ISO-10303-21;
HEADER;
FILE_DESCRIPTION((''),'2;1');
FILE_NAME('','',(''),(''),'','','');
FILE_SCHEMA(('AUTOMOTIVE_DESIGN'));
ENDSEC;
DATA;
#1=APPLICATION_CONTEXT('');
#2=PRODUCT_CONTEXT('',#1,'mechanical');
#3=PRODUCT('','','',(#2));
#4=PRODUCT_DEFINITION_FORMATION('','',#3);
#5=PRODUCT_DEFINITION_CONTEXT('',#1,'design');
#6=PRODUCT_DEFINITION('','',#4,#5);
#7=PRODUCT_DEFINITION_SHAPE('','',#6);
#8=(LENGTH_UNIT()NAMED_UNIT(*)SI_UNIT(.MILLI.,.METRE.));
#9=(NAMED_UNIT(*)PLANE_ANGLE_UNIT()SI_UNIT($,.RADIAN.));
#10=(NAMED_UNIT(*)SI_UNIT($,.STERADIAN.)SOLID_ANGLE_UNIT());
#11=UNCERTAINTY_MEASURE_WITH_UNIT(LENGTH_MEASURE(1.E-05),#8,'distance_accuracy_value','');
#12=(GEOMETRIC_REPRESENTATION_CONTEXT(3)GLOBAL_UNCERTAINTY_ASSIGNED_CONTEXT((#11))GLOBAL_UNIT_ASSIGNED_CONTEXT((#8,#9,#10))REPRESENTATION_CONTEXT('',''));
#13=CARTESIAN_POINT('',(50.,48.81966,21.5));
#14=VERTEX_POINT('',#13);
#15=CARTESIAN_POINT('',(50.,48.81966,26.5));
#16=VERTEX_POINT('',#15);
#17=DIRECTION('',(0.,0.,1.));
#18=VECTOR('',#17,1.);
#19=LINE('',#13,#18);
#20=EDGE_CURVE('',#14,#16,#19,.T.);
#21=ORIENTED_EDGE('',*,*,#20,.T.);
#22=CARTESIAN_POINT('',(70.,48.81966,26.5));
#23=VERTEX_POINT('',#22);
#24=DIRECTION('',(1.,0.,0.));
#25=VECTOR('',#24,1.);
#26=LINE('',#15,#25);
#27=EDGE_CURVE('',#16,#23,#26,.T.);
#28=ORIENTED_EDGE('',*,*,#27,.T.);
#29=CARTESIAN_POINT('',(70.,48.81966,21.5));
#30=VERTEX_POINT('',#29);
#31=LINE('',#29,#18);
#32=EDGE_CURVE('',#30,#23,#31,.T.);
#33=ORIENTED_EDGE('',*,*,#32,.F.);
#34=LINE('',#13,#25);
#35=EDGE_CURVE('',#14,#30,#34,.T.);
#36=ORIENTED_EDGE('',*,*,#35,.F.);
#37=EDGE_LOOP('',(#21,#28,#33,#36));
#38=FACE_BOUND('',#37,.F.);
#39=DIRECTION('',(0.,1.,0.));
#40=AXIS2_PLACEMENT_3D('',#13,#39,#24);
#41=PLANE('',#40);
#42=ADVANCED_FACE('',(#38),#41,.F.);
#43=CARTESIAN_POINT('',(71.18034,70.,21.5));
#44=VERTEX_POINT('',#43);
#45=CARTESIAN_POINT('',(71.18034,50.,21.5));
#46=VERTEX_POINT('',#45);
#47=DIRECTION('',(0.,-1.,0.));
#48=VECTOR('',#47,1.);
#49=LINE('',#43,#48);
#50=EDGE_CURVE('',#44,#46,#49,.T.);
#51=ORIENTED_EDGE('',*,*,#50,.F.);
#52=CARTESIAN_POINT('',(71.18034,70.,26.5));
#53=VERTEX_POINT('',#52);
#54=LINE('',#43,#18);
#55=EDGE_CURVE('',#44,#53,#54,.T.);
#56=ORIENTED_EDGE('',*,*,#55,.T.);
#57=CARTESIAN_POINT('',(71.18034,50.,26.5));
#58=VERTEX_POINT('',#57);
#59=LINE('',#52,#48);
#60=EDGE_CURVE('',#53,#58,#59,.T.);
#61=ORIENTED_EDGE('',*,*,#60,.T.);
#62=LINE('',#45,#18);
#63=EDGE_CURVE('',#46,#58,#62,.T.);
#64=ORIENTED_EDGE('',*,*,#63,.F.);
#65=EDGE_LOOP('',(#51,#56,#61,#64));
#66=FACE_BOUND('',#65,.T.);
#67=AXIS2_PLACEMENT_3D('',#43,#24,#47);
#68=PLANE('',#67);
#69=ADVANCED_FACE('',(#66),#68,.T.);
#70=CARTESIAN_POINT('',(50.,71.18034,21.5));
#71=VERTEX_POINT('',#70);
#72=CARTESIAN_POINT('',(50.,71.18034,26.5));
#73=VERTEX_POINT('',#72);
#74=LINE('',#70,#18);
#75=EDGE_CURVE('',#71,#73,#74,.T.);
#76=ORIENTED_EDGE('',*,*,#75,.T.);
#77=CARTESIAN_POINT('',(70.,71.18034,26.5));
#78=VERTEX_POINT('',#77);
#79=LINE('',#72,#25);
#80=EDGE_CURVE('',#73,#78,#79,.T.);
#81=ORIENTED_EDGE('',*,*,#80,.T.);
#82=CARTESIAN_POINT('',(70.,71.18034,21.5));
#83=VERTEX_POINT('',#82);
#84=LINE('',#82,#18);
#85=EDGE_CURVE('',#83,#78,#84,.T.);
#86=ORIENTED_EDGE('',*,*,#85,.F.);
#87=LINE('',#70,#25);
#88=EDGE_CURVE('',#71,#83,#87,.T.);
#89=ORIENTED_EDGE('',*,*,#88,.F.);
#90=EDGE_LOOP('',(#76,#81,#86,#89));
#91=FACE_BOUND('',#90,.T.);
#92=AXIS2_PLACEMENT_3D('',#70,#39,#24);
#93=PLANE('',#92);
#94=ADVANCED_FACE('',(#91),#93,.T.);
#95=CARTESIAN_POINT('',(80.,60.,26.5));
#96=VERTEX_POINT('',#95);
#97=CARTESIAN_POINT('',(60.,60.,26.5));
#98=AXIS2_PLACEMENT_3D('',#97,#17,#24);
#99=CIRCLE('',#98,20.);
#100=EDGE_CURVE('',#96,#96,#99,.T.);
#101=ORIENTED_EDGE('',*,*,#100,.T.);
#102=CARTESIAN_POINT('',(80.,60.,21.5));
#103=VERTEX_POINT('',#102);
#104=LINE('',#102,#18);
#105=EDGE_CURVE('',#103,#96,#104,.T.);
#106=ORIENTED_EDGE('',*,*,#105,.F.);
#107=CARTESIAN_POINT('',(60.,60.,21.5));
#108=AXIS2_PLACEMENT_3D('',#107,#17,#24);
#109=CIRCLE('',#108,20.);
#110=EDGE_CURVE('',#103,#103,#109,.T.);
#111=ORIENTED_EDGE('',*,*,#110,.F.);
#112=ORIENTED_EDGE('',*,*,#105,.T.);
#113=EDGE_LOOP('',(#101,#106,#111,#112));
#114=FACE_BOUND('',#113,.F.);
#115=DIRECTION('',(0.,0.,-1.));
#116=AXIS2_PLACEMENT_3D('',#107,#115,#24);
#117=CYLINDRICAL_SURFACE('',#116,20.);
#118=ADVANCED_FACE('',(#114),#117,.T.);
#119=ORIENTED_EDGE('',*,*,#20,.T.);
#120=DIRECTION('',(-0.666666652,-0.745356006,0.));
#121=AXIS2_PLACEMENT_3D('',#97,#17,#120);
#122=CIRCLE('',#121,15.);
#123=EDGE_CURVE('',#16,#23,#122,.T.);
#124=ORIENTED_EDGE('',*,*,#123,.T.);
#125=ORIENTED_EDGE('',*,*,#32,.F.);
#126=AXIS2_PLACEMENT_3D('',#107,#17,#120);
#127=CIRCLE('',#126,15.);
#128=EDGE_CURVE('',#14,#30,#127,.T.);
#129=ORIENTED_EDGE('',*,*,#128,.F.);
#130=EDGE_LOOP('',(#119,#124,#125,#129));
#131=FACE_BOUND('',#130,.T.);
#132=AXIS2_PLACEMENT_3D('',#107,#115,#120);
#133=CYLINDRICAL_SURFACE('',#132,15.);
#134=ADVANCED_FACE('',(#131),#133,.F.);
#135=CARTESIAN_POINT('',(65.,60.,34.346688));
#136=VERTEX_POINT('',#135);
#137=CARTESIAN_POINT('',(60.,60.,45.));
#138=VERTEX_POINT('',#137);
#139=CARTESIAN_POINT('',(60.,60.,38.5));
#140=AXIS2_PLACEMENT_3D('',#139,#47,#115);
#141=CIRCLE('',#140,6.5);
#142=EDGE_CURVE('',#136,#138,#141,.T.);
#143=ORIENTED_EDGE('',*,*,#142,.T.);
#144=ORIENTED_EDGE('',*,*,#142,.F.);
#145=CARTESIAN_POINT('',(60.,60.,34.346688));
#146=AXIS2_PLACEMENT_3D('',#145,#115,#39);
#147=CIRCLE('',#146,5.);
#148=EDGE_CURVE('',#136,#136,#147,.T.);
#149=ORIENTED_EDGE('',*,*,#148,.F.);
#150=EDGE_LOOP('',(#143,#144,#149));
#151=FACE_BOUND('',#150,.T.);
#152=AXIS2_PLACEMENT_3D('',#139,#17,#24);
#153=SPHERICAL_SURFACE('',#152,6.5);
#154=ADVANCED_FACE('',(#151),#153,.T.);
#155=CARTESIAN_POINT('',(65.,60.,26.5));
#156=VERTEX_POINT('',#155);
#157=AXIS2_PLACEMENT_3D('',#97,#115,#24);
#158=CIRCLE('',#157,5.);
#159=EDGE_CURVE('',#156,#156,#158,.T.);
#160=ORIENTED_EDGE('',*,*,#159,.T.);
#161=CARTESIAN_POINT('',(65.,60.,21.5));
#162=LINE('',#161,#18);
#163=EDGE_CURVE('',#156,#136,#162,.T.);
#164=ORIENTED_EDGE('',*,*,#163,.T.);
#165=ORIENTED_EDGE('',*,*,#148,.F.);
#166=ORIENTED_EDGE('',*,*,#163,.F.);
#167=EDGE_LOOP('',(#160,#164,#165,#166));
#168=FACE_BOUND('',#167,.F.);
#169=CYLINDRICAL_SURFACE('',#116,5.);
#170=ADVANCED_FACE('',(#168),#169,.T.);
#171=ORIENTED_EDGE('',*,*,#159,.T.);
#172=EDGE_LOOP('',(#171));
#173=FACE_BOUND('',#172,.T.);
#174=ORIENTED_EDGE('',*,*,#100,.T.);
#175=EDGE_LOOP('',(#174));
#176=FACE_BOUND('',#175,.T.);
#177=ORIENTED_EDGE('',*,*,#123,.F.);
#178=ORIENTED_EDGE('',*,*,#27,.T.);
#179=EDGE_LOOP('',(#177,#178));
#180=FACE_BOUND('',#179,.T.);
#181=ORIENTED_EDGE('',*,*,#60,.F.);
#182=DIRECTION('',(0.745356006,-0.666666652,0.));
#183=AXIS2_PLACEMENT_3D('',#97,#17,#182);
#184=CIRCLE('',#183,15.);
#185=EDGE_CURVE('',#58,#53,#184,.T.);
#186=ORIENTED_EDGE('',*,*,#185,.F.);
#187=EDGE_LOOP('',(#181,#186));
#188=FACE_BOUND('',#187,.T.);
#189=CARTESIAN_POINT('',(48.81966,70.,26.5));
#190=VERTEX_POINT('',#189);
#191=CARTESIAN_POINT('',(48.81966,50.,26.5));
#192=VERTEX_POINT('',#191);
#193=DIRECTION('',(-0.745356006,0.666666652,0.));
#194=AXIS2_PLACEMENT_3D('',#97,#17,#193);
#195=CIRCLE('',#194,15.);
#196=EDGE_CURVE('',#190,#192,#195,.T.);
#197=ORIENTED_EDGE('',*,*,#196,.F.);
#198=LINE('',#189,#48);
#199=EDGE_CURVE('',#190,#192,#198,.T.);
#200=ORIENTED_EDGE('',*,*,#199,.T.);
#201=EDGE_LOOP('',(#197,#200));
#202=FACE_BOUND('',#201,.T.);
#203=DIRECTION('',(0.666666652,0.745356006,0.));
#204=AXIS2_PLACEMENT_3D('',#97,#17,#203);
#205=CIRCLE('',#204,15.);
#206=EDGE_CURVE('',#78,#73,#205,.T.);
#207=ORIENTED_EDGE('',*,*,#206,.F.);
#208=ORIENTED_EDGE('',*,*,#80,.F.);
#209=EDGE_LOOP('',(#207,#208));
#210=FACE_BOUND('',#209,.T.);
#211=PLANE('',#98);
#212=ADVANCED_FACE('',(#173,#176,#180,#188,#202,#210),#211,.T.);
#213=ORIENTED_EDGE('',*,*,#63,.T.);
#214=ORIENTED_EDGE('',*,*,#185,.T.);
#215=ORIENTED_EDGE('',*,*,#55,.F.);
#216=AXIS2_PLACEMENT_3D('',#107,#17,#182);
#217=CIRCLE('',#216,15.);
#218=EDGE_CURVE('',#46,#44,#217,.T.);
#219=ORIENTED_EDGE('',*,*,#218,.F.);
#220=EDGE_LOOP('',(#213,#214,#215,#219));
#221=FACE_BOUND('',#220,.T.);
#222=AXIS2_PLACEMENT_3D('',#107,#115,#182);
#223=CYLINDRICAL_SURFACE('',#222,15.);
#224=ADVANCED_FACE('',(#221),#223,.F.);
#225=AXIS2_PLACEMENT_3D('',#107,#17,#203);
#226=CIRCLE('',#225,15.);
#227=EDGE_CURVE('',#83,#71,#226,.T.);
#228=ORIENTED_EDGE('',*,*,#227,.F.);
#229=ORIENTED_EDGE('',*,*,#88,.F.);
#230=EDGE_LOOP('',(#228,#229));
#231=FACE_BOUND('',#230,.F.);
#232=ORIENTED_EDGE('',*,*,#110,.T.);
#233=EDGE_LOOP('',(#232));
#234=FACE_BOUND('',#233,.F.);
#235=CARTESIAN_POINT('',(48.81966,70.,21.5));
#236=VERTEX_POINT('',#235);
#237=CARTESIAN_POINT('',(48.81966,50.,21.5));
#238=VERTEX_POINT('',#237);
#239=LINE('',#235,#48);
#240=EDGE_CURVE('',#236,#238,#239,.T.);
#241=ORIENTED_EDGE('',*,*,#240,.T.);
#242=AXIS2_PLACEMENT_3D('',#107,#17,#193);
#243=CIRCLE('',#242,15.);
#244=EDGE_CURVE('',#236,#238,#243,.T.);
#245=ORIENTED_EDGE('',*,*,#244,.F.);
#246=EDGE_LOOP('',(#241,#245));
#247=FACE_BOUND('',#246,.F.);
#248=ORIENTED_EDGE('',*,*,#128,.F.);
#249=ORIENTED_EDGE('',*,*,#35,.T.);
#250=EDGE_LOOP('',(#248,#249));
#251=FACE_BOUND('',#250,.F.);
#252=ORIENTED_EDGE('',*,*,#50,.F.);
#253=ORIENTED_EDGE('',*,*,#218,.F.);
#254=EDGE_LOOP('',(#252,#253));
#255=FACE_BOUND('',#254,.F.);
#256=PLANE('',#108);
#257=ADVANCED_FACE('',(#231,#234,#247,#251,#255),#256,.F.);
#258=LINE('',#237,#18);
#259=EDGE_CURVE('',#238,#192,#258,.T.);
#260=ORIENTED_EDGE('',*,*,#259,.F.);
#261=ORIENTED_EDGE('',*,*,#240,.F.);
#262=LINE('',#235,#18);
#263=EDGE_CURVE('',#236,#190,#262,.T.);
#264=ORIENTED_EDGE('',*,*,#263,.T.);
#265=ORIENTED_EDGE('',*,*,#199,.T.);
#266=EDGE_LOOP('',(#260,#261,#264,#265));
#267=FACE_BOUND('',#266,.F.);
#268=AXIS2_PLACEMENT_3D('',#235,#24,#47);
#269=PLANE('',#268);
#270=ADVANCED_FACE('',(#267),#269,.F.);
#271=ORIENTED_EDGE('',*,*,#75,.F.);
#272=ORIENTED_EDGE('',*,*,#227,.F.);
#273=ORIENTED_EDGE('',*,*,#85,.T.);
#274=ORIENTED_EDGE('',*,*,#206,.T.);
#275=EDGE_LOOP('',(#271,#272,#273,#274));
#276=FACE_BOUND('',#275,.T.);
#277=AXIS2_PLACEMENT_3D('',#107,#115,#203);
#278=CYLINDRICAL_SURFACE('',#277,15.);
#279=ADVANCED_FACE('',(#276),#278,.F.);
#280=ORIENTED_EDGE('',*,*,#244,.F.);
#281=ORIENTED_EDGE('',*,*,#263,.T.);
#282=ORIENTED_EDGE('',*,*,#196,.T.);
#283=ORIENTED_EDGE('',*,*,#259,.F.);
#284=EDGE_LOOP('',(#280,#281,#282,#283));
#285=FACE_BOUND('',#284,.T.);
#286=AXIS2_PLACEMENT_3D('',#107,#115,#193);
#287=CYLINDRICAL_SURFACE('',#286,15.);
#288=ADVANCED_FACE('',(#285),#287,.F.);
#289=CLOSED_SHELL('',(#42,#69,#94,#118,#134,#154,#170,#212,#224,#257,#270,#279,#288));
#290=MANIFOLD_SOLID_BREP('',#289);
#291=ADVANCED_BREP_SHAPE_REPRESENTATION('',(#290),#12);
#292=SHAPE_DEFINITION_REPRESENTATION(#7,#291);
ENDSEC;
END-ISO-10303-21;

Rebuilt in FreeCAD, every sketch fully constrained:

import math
import FreeCAD as App
import Part
import Sketcher
from FreeCAD import Vector
Q = App.Units.Quantity

doc = App.newDocument("Part")
params = doc.addObject("Spreadsheet::Sheet", "Params")
for row, (alias, value) in enumerate([
    ("sketch1_diameter", "40 mm"),
    ("sketch1_radius", "15 mm"),
    ("sketch1_width", "20 mm"),
    ("pad1_length", "5 mm"),
    ("sketch2_radius", "6.5 mm"),
    ("revolution_angle", "360 deg"),
    ("sketch3_diameter", "10 mm"),
    ("pad2_length", "15 mm"),
], start=1):
    params.set(f"A{row}", alias)
    params.set(f"B{row}", "=" + value)
    params.setAlias(f"B{row}", alias)

body = doc.addObject("PartDesign::Body", "Body")

# Sketch on XY plane
sketch1 = body.newObject("Sketcher::SketchObject", "Sketch")
sketch1.AttachmentSupport = (doc.getObject("XY_Plane"), [""])
sketch1.MapMode = "FlatFace"
sketch1.addGeometry([
    Part.Circle(Vector(0, 0, 0), Vector(0, 0, 1), 20),  # 0
    Part.ArcOfCircle(Part.Circle(Vector(0, 0, 0), Vector(0, 0, 1), 15), math.radians(-132), math.radians(-48)),  # 1
    Part.LineSegment(Vector(-10, -11, 0), Vector(10, -11, 0)),  # 2
    Part.ArcOfCircle(Part.Circle(Vector(0, 0, 0), Vector(0, 0, 1), 15), math.radians(138), math.radians(222)),  # 3
    Part.LineSegment(Vector(-11, 10, 0), Vector(-11, -10, 0)),  # 4
    Part.ArcOfCircle(Part.Circle(Vector(0, 0, 0), Vector(0, 0, 1), 15), math.radians(48), math.radians(132)),  # 5
    Part.LineSegment(Vector(10, 11, 0), Vector(-10, 11, 0)),  # 6
    Part.ArcOfCircle(Part.Circle(Vector(0, 0, 0), Vector(0, 0, 1), 15), math.radians(-42), math.radians(42)),  # 7
    Part.LineSegment(Vector(11, -10, 0), Vector(11, 10, 0)),  # 8
], False)
sketch1.addConstraint([
    Sketcher.Constraint("Coincident", 1, 1, 2, 1),
    Sketcher.Constraint("Coincident", 2, 2, 1, 2),
    Sketcher.Constraint("Coincident", 3, 1, 4, 1),
    Sketcher.Constraint("Coincident", 4, 2, 3, 2),
    Sketcher.Constraint("Coincident", 5, 1, 6, 1),
    Sketcher.Constraint("Coincident", 6, 2, 5, 2),
    Sketcher.Constraint("Coincident", 7, 1, 8, 1),
    Sketcher.Constraint("Coincident", 8, 2, 7, 2),
    Sketcher.Constraint("Horizontal", 2),
    Sketcher.Constraint("Vertical", 4),
    Sketcher.Constraint("Horizontal", 6),
    Sketcher.Constraint("Vertical", 8),
    Sketcher.Constraint("Coincident", 0, 3, -1, 1),
    Sketcher.Constraint("Coincident", 1, 3, -1, 1),
    Sketcher.Constraint("Coincident", 3, 3, -1, 1),
    Sketcher.Constraint("Coincident", 5, 3, -1, 1),
    Sketcher.Constraint("Coincident", 7, 3, -1, 1),
    Sketcher.Constraint("Equal", 1, 3),
    Sketcher.Constraint("Equal", 3, 5),
    Sketcher.Constraint("Equal", 5, 7),
    Sketcher.Constraint("Horizontal", 4, 2, 7, 1),
    Sketcher.Constraint("Vertical", 2, 2, 5, 1),
    Sketcher.Constraint("Equal", 6, 4),
    Sketcher.Constraint("Diameter", 0, Q("40 mm")),
    Sketcher.Constraint("Radius", 1, Q("15 mm")),
    Sketcher.Constraint("DistanceX", 2, 1, 2, 2, Q("20 mm")),
])
sketch1.setExpression("Constraints[23]", "Params.sketch1_diameter")
sketch1.setExpression("Constraints[24]", "Params.sketch1_radius")
sketch1.setExpression("Constraints[25]", "Params.sketch1_width")
pad1 = body.newObject("PartDesign::Pad", "Pad")
pad1.Profile = sketch1
pad1.setExpression("Length", "Params.pad1_length")
body2 = doc.addObject("PartDesign::Body", "Body001")

# Sketch on XZ plane
sketch2 = body2.newObject("Sketcher::SketchObject", "Sketch001")
sketch2.AttachmentSupport = (doc.getObject("XZ_Plane001"), [""])
sketch2.MapMode = "FlatFace"
sketch2.addGeometry([
    Part.ArcOfCircle(Part.Circle(Vector(0, 17, 0), Vector(0, 0, 1), 6), math.radians(-90), math.radians(90)),
    Part.LineSegment(Vector(0, 24, 0), Vector(0, 10, 0)),
], False)
sketch2.addConstraint([
    Sketcher.Constraint("Coincident", 0, 1, 1, 2),
    Sketcher.Constraint("Coincident", 1, 1, 0, 2),
    Sketcher.Constraint("Vertical", 1),
    Sketcher.Constraint("PointOnObject", 0, 3, -2),
    Sketcher.Constraint("PointOnObject", 0, 1, -2),
    Sketcher.Constraint("Radius", 0, Q("6.5 mm")),
    Sketcher.Constraint("DistanceY", -1, 1, 0, 3, Q("17 mm")),
])
sketch2.setExpression("Constraints[5]", "Params.sketch2_radius")
revolution = body2.newObject("PartDesign::Revolution", "Revolution")
revolution.Profile = sketch2
revolution.ReferenceAxis = (sketch2, ["V_Axis"])
revolution.setExpression("Angle", "Params.revolution_angle")
body3 = doc.addObject("PartDesign::Body", "Body002")

# Sketch on XY plane
sketch3 = body3.newObject("Sketcher::SketchObject", "Sketch002")
sketch3.AttachmentSupport = (doc.getObject("XY_Plane002"), [""])
sketch3.MapMode = "FlatFace"
sketch3.addGeometry(Part.Circle(Vector(0, 0, 0), Vector(0, 0, 1), 5), False)
sketch3.addConstraint([
    Sketcher.Constraint("Coincident", 0, 3, -1, 1),
    Sketcher.Constraint("Diameter", 0, Q("10 mm")),
])
sketch3.setExpression("Constraints[1]", "Params.sketch3_diameter")
pad2 = body3.newObject("PartDesign::Pad", "Pad001")
pad2.Profile = sketch3
pad2.setExpression("Length", "Params.pad2_length")
doc.recompute()

boolean = body3.newObject("PartDesign::Boolean", "Boolean")
boolean.Type = "Fuse"
boolean.addObjects([body])
doc.recompute()

boolean2 = body3.newObject("PartDesign::Boolean", "Boolean001")
boolean2.Type = "Fuse"
boolean2.addObjects([body2])
body4 = doc.addObject("PartDesign::Body", "Body003")
doc.recompute()

body3.Placement = App.Placement(Vector(60, 60, 21.5), App.Rotation(Vector(0, 0, 1), 0))
boolean3 = body4.newObject("PartDesign::Boolean", "Boolean002")
boolean3.Type = "Fuse"
boolean3.addObjects([body3])

doc.recompute()
